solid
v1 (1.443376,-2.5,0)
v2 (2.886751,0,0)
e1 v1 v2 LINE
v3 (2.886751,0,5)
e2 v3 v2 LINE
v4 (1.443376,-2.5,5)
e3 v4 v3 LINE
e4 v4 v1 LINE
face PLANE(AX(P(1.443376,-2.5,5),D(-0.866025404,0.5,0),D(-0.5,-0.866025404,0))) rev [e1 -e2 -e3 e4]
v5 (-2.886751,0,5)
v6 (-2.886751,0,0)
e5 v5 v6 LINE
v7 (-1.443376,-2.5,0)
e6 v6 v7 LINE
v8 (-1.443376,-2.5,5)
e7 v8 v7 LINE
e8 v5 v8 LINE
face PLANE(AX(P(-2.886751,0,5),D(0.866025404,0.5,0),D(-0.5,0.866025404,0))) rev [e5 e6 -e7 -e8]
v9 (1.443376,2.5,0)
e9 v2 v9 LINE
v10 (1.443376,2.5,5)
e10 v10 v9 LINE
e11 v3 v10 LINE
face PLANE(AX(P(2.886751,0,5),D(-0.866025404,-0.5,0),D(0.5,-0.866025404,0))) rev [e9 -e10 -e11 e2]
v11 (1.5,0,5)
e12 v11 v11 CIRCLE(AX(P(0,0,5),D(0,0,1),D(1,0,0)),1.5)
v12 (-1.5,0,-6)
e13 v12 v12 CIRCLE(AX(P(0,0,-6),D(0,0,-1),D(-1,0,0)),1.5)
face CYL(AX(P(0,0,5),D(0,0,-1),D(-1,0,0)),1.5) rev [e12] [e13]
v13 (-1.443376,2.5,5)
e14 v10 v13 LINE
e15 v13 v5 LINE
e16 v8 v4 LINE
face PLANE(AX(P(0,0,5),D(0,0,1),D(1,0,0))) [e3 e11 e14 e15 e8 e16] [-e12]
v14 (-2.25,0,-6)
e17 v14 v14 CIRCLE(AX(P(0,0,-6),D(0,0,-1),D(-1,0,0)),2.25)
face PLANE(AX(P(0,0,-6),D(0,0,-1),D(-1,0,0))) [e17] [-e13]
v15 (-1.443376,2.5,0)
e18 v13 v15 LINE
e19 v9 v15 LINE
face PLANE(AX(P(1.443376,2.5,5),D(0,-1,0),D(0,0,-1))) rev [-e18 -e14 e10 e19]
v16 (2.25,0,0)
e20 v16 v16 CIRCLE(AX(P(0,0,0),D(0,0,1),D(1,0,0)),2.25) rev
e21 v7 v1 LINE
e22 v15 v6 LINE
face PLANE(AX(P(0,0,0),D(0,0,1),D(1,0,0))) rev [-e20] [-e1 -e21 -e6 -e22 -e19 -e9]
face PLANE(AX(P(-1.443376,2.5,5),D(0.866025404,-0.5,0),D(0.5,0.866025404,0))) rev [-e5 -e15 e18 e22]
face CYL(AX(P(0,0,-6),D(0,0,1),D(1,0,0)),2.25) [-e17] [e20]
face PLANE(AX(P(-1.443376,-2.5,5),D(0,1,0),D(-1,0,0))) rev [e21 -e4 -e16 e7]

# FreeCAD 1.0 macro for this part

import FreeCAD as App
import Part
import Sketcher
Q = App.Units.Quantity


def add_polygon(sketch, points):
    """Adds a closed chain of lines whose ends are joined by coincident constraints."""
    first, n = sketch.GeometryCount, len(points)
    for a, b in zip(points, points[1:] + points[:1]):
        sketch.addGeometry(Part.LineSegment(App.Vector(*a, 0), App.Vector(*b, 0)), False)
    for i in range(n):
        sketch.addConstraint(Sketcher.Constraint("Coincident", first + i, 2, first + (i + 1) % n, 1))

doc = App.newDocument("Part")
body = doc.addObject("PartDesign::Body", "Body")

# Sketch on XY plane
sketch1 = body.newObject("Sketcher::SketchObject", "Sketch")
sketch1.AttachmentSupport = (doc.getObject("XY_Plane"), [""])
sketch1.MapMode = "FlatFace"
add_polygon(sketch1, [(-2.9, 0), (-1.4, -2.5), (1.4, -2.5), (2.9, 0), (1.4, 2.5), (-1.4, 2.5)])  # lines 0-5
sketch1.addGeometry(Part.Circle(App.Vector(0, 0, 0), App.Vector(0, 0, 1), 1.5), False)  # 6
sketch1.addConstraint(Sketcher.Constraint("Horizontal", 1))
sketch1.addConstraint(Sketcher.Constraint("Horizontal", 4))
sketch1.addConstraint(Sketcher.Constraint("Coincident", 6, 3, -1, 1))
sketch1.addConstraint(Sketcher.Constraint("Symmetric", 0, 2, 3, 2, -1, 1))
sketch1.addConstraint(Sketcher.Constraint("Symmetric", 2, 2, 5, 2, -1, 1))
sketch1.addConstraint(Sketcher.Constraint("PointOnObject", 2, 2, -1))
sketch1.addConstraint(Sketcher.Constraint("Parallel", 2, 5))
sketch1.addConstraint(Sketcher.Constraint("Vertical", 1, 2, 3, 2))
sketch1.addConstraint(Sketcher.Constraint("Diameter", 6, 3.0))
sketch1.addConstraint(Sketcher.Constraint("Angle", 0, Q("-60 deg")))
sketch1.addConstraint(Sketcher.Constraint("DistanceY", 1, 2, 3, 2, 5.0))
sketch1.addConstraint(Sketcher.Constraint("DistanceX", 1, 1, 1, 2, 2.886751))
pad1 = body.newObject("PartDesign::Pad", "Pad")
pad1.Profile = sketch1
pad1.Length = 5

# Sketch on XY plane
sketch2 = body.newObject("Sketcher::SketchObject", "Sketch001")
sketch2.AttachmentSupport = (doc.getObject("XY_Plane"), [""])
sketch2.MapMode = "FlatFace"
sketch2.AttachmentOffset = App.Placement(App.Vector(0, 0, -6), App.Rotation())
sketch2.addGeometry(Part.Circle(App.Vector(0, 0, 0), App.Vector(0, 0, 1), 2.2), False)
sketch2.addGeometry(Part.Circle(App.Vector(0, 0, 0), App.Vector(0, 0, 1), 1.5), False)
sketch2.addConstraint(Sketcher.Constraint("Coincident", 0, 3, -1, 1))
sketch2.addConstraint(Sketcher.Constraint("Coincident", 1, 3, -1, 1))
sketch2.addConstraint(Sketcher.Constraint("Diameter", 1, 3.0))
sketch2.addConstraint(Sketcher.Constraint("Diameter", 0, 4.5))
pad2 = body.newObject("PartDesign::Pad", "Pad001")
pad2.Profile = sketch2
pad2.Length = 6

doc.recompute()
